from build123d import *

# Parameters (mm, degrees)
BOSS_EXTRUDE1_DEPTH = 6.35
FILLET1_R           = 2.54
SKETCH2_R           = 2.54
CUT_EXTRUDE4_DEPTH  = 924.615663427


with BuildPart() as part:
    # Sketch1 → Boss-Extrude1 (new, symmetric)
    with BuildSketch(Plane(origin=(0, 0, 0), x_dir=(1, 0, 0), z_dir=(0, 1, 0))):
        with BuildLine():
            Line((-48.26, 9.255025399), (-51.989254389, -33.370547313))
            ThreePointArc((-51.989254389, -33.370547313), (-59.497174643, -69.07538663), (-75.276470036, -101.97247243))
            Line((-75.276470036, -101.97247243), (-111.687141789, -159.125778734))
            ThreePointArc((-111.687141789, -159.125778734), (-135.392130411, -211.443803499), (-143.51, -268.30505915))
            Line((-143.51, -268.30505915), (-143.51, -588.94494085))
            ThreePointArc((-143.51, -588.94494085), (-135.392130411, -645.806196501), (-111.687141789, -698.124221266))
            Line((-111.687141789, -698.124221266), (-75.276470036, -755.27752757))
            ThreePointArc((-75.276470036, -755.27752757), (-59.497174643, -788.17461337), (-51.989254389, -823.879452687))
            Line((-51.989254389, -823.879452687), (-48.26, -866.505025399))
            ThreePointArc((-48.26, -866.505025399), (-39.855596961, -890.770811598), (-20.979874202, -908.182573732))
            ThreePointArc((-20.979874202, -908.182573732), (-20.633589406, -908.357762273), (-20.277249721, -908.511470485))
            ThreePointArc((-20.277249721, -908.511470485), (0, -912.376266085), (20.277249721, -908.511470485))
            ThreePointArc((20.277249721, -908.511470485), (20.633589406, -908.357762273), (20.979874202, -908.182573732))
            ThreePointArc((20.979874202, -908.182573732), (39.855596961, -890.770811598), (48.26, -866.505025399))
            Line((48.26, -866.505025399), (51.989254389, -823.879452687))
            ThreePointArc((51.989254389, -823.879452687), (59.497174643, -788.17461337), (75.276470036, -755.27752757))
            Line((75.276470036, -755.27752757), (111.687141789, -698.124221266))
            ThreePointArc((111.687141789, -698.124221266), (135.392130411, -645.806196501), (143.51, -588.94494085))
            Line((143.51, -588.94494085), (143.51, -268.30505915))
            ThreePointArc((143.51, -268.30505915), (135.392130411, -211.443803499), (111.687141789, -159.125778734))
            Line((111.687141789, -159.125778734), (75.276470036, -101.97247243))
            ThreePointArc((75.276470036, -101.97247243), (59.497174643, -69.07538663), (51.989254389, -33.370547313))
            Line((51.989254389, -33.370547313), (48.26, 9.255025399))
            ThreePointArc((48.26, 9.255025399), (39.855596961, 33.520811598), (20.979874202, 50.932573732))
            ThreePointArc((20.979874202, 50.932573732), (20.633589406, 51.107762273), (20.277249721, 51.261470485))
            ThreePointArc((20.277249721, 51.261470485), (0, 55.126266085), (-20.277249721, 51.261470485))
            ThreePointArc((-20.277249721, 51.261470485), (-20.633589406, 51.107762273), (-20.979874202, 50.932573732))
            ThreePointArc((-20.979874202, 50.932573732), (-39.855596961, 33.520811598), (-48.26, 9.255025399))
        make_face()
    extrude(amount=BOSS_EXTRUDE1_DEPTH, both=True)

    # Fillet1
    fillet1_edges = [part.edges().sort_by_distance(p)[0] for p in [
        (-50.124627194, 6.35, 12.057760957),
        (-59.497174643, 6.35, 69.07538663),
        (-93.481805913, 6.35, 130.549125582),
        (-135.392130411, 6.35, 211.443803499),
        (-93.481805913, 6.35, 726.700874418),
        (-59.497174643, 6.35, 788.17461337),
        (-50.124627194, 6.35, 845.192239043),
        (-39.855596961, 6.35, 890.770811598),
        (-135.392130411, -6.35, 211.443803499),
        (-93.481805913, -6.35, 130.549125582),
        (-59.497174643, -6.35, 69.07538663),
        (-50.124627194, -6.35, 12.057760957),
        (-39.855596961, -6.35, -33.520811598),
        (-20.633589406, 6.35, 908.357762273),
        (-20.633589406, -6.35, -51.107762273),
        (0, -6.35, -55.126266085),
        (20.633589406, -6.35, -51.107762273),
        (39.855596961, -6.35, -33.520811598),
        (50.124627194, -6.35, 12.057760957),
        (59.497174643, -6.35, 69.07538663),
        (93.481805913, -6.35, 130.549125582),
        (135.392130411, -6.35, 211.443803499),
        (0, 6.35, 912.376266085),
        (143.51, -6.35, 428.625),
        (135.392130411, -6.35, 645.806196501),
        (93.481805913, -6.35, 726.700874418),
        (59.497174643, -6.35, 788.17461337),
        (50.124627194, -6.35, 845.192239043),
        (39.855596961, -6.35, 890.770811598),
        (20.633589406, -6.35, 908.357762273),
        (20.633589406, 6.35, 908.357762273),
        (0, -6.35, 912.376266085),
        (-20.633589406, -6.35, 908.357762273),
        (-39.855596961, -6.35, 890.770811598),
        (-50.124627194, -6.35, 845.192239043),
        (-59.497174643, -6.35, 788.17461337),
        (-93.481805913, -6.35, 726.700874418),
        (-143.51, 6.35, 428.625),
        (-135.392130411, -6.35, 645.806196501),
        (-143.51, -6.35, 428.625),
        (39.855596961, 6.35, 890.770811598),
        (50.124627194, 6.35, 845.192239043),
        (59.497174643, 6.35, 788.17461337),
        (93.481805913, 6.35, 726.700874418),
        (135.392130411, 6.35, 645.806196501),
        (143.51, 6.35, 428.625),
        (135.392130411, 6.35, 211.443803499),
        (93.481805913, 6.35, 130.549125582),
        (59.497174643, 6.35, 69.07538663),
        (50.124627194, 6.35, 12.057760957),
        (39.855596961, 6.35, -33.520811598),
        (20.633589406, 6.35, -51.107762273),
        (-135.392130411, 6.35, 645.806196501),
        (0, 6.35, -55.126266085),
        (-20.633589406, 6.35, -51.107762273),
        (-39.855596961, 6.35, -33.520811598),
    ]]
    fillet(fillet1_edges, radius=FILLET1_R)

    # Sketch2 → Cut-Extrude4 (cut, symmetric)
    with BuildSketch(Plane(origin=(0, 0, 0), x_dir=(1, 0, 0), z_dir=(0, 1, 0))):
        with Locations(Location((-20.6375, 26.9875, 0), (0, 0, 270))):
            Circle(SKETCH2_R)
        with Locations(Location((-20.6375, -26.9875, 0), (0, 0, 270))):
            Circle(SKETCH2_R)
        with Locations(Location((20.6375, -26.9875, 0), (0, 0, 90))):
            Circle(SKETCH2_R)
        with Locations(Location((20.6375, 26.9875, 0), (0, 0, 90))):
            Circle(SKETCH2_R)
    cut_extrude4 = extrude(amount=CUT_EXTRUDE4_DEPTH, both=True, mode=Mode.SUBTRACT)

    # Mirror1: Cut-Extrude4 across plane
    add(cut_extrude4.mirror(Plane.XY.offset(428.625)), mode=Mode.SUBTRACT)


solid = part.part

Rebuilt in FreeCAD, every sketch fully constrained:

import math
import FreeCAD as App
import Part
import Sketcher

V = App.Vector
Q = App.Units.Quantity


def edges_at(feature, points):
    """Names of the edges that pass closest to the given points."""
    edges = feature.Shape.Edges
    near = lambda p: min(range(len(edges)), key=lambda i: edges[i].distToShape(Part.Vertex(*p))[0])
    return sorted({f"Edge{near(p) + 1}" for p in points})

doc = App.newDocument("Part")
body = doc.addObject("PartDesign::Body", "Body")

# Sketch on XZ plane
sketch1 = body.newObject("Sketcher::SketchObject", "Sketch")
sketch1.AttachmentSupport = (doc.getObject("XZ_Plane"), [""])
sketch1.MapMode = "FlatFace"
sketch1.addGeometry(Part.LineSegment(V(-48.26, -9.255025, 0), V(-51.989254, 33.370547, 0)), False)
sketch1.addGeometry(Part.ArcOfCircle(Part.Circle(V(-203.809326, 20.088012, 0), V(0, 0, 1), 152.4), math.radians(5), math.radians(32.5)), False)
sketch1.addGeometry(Part.LineSegment(V(-75.27647, 101.972472, 0), V(-111.687142, 159.125779, 0)), False)
sketch1.addGeometry(Part.ArcOfCircle(Part.Circle(V(59.69, 268.305059, 0), V(0, 0, 1), 203.2), math.radians(-180), math.radians(-147.5)), False)
sketch1.addGeometry(Part.LineSegment(V(-143.51, 268.305059, 0), V(-143.51, 588.944941, 0)), False)
sketch1.addGeometry(Part.ArcOfCircle(Part.Circle(V(59.69, 588.944941, 0), V(0, 0, 1), 203.2), math.radians(147.5), math.radians(180)), False)
sketch1.addGeometry(Part.LineSegment(V(-111.687142, 698.124221, 0), V(-75.27647, 755.277528, 0)), False)
sketch1.addGeometry(Part.ArcOfCircle(Part.Circle(V(-203.809326, 837.161988, 0), V(0, 0, 1), 152.4), math.radians(-32.5), math.radians(-5)), False)
sketch1.addGeometry(Part.LineSegment(V(-51.989254, 823.879453, 0), V(-48.26, 866.505025, 0)), False)
sketch1.addGeometry(Part.ArcOfCircle(Part.Circle(V(4.233081, 861.912476, 0), V(0, 0, 1), 52.693596), math.radians(118.586328), math.radians(175)), False)
sketch1.addGeometry(Part.ArcOfCircle(Part.Circle(V(-17.941511, 902.606657, 0), V(0, 0, 1), 6.35), math.radians(111.582023), math.radians(118.586328)), False)
sketch1.addGeometry(Part.ArcOfCircle(Part.Circle(V(0, 857.25, 0), V(0, 0, 1), 55.126266), math.radians(68.417977), math.radians(111.582023)), False)
sketch1.addGeometry(Part.ArcOfCircle(Part.Circle(V(17.941511, 902.606657, 0), V(0, 0, 1), 6.35), math.radians(61.413672), math.radians(68.417977)), False)
sketch1.addGeometry(Part.ArcOfCircle(Part.Circle(V(-4.233081, 861.912476, 0), V(0, 0, 1), 52.693596), math.radians(5), math.radians(61.413672)), False)
sketch1.addGeometry(Part.LineSegment(V(48.26, 866.505025, 0), V(51.989254, 823.879453, 0)), False)
sketch1.addGeometry(Part.ArcOfCircle(Part.Circle(V(203.809326, 837.161988, 0), V(0, 0, 1), 152.4), math.radians(-175), math.radians(-147.5)), False)
sketch1.addGeometry(Part.LineSegment(V(75.27647, 755.277528, 0), V(111.687142, 698.124221, 0)), False)
sketch1.addGeometry(Part.ArcOfCircle(Part.Circle(V(-59.69, 588.944941, 0), V(0, 0, 1), 203.2), math.radians(0), math.radians(32.5)), False)
sketch1.addGeometry(Part.LineSegment(V(143.51, 588.944941, 0), V(143.51, 268.305059, 0)), False)
sketch1.addGeometry(Part.ArcOfCircle(Part.Circle(V(-59.69, 268.305059, 0), V(0, 0, 1), 203.2), math.radians(-32.5), math.radians(0)), False)
sketch1.addGeometry(Part.LineSegment(V(111.687142, 159.125779, 0), V(75.27647, 101.972472, 0)), False)
sketch1.addGeometry(Part.ArcOfCircle(Part.Circle(V(203.809326, 20.088012, 0), V(0, 0, 1), 152.4), math.radians(147.5), math.radians(175)), False)
sketch1.addGeometry(Part.LineSegment(V(51.989254, 33.370547, 0), V(48.26, -9.255025, 0)), False)
sketch1.addGeometry(Part.ArcOfCircle(Part.Circle(V(-4.233081, -4.662476, 0), V(0, 0, 1), 52.693596), math.radians(-61.413672), math.radians(-5)), False)
sketch1.addGeometry(Part.ArcOfCircle(Part.Circle(V(17.941511, -45.356657, 0), V(0, 0, 1), 6.35), math.radians(-68.417977), math.radians(-61.413672)), False)
sketch1.addGeometry(Part.ArcOfCircle(Part.Circle(V(0, 0, 0), V(0, 0, 1), 55.126266), math.radians(-111.582023), math.radians(-68.417977)), False)
sketch1.addGeometry(Part.ArcOfCircle(Part.Circle(V(-17.941511, -45.356657, 0), V(0, 0, 1), 6.35), math.radians(-118.586328), math.radians(-111.582023)), False)
sketch1.addGeometry(Part.ArcOfCircle(Part.Circle(V(4.233081, -4.662476, 0), V(0, 0, 1), 52.693596), math.radians(-175), math.radians(-118.586328)), False)
sketch1.addConstraint(Sketcher.Constraint("Tangent", 0, 2, 1, 1))
sketch1.addConstraint(Sketcher.Constraint("Tangent", 1, 2, 2, 1))
sketch1.addConstraint(Sketcher.Constraint("Tangent", 2, 2, 3, 2))
sketch1.addConstraint(Sketcher.Constraint("Tangent", 3, 1, 4, 1))
sketch1.addConstraint(Sketcher.Constraint("Tangent", 4, 2, 5, 2))
sketch1.addConstraint(Sketcher.Constraint("Tangent", 5, 1, 6, 1))
sketch1.addConstraint(Sketcher.Constraint("Tangent", 6, 2, 7, 1))
sketch1.addConstraint(Sketcher.Constraint("Tangent", 7, 2, 8, 1))
sketch1.addConstraint(Sketcher.Constraint("Tangent", 8, 2, 9, 2))
sketch1.addConstraint(Sketcher.Constraint("Tangent", 9, 1, 10, 2))
sketch1.addConstraint(Sketcher.Constraint("Tangent", 10, 1, 11, 2))
sketch1.addConstraint(Sketcher.Constraint("Tangent", 11, 1, 12, 2))
sketch1.addConstraint(Sketcher.Constraint("Tangent", 12, 1, 13, 2))
sketch1.addConstraint(Sketcher.Constraint("Tangent", 13, 1, 14, 1))
sketch1.addConstraint(Sketcher.Constraint("Tangent", 14, 2, 15, 1))
sketch1.addConstraint(Sketcher.Constraint("Tangent", 15, 2, 16, 1))
sketch1.addConstraint(Sketcher.Constraint("Tangent", 16, 2, 17, 2))
sketch1.addConstraint(Sketcher.Constraint("Tangent", 17, 1, 18, 1))
sketch1.addConstraint(Sketcher.Constraint("Tangent", 18, 2, 19, 2))
sketch1.addConstraint(Sketcher.Constraint("Tangent", 19, 1, 20, 1))
sketch1.addConstraint(Sketcher.Constraint("Tangent", 20, 2, 21, 1))
sketch1.addConstraint(Sketcher.Constraint("Tangent", 21, 2, 22, 1))
sketch1.addConstraint(Sketcher.Constraint("Tangent", 22, 2, 23, 2))
sketch1.addConstraint(Sketcher.Constraint("Tangent", 23, 1, 24, 2))
sketch1.addConstraint(Sketcher.Constraint("Tangent", 24, 1, 25, 2))
sketch1.addConstraint(Sketcher.Constraint("Tangent", 25, 1, 26, 2))
sketch1.addConstraint(Sketcher.Constraint("Tangent", 26, 1, 27, 2))
sketch1.addConstraint(Sketcher.Constraint("Tangent", 27, 1, 0, 1))
sketch1.addConstraint(Sketcher.Constraint("Vertical", 4))
sketch1.addConstraint(Sketcher.Constraint("Vertical", 18))
sketch1.addConstraint(Sketcher.Constraint("Coincident", 25, 3, -1, 1))
sketch1.addConstraint(Sketcher.Constraint("Equal", 3, 5))
sketch1.addConstraint(Sketcher.Constraint("Equal", 1, 7))
sketch1.addConstraint(Sketcher.Constraint("Equal", 10, 12))
sketch1.addConstraint(Sketcher.Constraint("Equal", 9, 13))
sketch1.addConstraint(Sketcher.Constraint("Equal", 7, 15))
sketch1.addConstraint(Sketcher.Constraint("Equal", 5, 17))
sketch1.addConstraint(Sketcher.Constraint("Equal", 17, 19))
sketch1.addConstraint(Sketcher.Constraint("Equal", 15, 21))
sketch1.addConstraint(Sketcher.Constraint("Equal", 13, 23))
sketch1.addConstraint(Sketcher.Constraint("Equal", 12, 24))
sketch1.addConstraint(Sketcher.Constraint("Equal", 11, 25))
sketch1.addConstraint(Sketcher.Constraint("Equal", 24, 26))
sketch1.addConstraint(Sketcher.Constraint("Equal", 23, 27))
sketch1.addConstraint(Sketcher.Constraint("Symmetric", 10, 3, 12, 3, -2))
sketch1.addConstraint(Sketcher.Constraint("Symmetric", 7, 3, 15, 3, -2))
sketch1.addConstraint(Sketcher.Constraint("Symmetric", 5, 3, 17, 3, -2))
sketch1.addConstraint(Sketcher.Constraint("Symmetric", 1, 3, 21, 3, -2))
sketch1.addConstraint(Sketcher.Constraint("Symmetric", 23, 3, 27, 3, -2))
sketch1.addConstraint(Sketcher.Constraint("Parallel", 0, 14))
sketch1.addConstraint(Sketcher.Constraint("Parallel", 2, 16))
sketch1.addConstraint(Sketcher.Constraint("Parallel", 6, 20))
sketch1.addConstraint(Sketcher.Constraint("Parallel", 8, 22))
sketch1.addConstraint(Sketcher.Constraint("Vertical", 1, 3, 7, 3))
sketch1.addConstraint(Sketcher.Constraint("Vertical", 13, 3, 23, 3))
sketch1.addConstraint(Sketcher.Constraint("Vertical", 12, 3, 24, 3))
sketch1.addConstraint(Sketcher.Constraint("Radius", 1, Q("6 in")))
sketch1.addConstraint(Sketcher.Constraint("Radius", 3, Q("8 in")))
sketch1.addConstraint(Sketcher.Constraint("Radius", 10, Q("0.25 in")))
sketch1.addConstraint(Sketcher.Constraint("Angle", 0, Q("95 deg")))
sketch1.addConstraint(Sketcher.Constraint("DistanceX", 8, 2, -1, 1, Q("1.9 in")))
sketch1.addConstraint(Sketcher.Constraint("Angle", 2, Q("122.5 deg")))
sketch1.addConstraint(Sketcher.Constraint("DistanceX", 17, 3, 5, 3, Q("4.7 in")))
sketch1.addConstraint(Sketcher.Constraint("DistanceY", -1, 1, 11, 3, Q("33.75 in")))
sketch1.addConstraint(Sketcher.Constraint("Radius", 9, Q("52.693596 mm")))
sketch1.addConstraint(Sketcher.Constraint("Radius", 11, Q("55.126266 mm")))
sketch1.addConstraint(Sketcher.Constraint("DistanceY", 4, 1, 4, 2, Q("320.639882 mm")))
sketch1.addConstraint(Sketcher.Constraint("DistanceX", 10, 1, 11, 1, Q("40.554499 mm")))
pad1 = body.newObject("PartDesign::Pad", "Pad")
pad1.Profile = sketch1
pad1.Length = Q("0.5 in")
pad1.Midplane = True
doc.recompute()

fillet = body.newObject("PartDesign::Fillet", "Fillet")
fillet.Base = (pad1, edges_at(pad1, [
    (-50.125, 6.35, 12.058),
    (-59.497, 6.35, 69.075),
    (-93.482, 6.35, 130.549),
    (-135.392, 6.35, 211.444),
    (-93.482, 6.35, 726.701),
    (-59.497, 6.35, 788.175),
    (-50.125, 6.35, 845.192),
    (-39.856, 6.35, 890.771),
    (-135.392, -6.35, 211.444),
    (-93.482, -6.35, 130.549),
    (-59.497, -6.35, 69.075),
    (-50.125, -6.35, 12.058),
    (-39.856, -6.35, -33.521),
    (-20.634, 6.35, 908.358),
    (-20.634, -6.35, -51.108),
    (0, -6.35, -55.126),
    (20.634, -6.35, -51.108),
    (39.856, -6.35, -33.521),
    (50.125, -6.35, 12.058),
    (59.497, -6.35, 69.075),
    (93.482, -6.35, 130.549),
    (135.392, -6.35, 211.444),
    (0, 6.35, 912.376),
    (143.51, -6.35, 428.625),
    (135.392, -6.35, 645.806),
    (93.482, -6.35, 726.701),
    (59.497, -6.35, 788.175),
    (50.125, -6.35, 845.192),
    (39.856, -6.35, 890.771),
    (20.634, -6.35, 908.358),
    (20.634, 6.35, 908.358),
    (0, -6.35, 912.376),
    (-20.634, -6.35, 908.358),
    (-39.856, -6.35, 890.771),
    (-50.125, -6.35, 845.192),
    (-59.497, -6.35, 788.175),
    (-93.482, -6.35, 726.701),
    (-143.51, 6.35, 428.625),
    (-135.392, -6.35, 645.806),
    (-143.51, -6.35, 428.625),
    (39.856, 6.35, 890.771),
    (50.125, 6.35, 845.192),
    (59.497, 6.35, 788.175),
    (93.482, 6.35, 726.701),
    (135.392, 6.35, 645.806),
    (143.51, 6.35, 428.625),
    (135.392, 6.35, 211.444),
    (93.482, 6.35, 130.549),
    (59.497, 6.35, 69.075),
    (50.125, 6.35, 12.058),
    (39.856, 6.35, -33.521),
    (20.634, 6.35, -51.108),
    (-135.392, 6.35, 645.806),
    (0, 6.35, -55.126),
    (-20.634, 6.35, -51.108),
    (-39.856, 6.35, -33.521),
]))
fillet.Radius = Q("0.1 in")

# Sketch on XZ plane
sketch2 = body.newObject("Sketcher::SketchObject", "Sketch001")
sketch2.AttachmentSupport = (doc.getObject("XZ_Plane"), [""])
sketch2.MapMode = "FlatFace"
sketch2.addGeometry(Part.Circle(V(-20.6375, -26.9875, 0), V(0, 0, 1), 2.54), False)
sketch2.addGeometry(Part.Circle(V(-20.6375, 26.9875, 0), V(0, 0, 1), 2.54), False)
sketch2.addGeometry(Part.Circle(V(20.6375, 26.9875, 0), V(0, 0, 1), 2.54), False)
sketch2.addGeometry(Part.Circle(V(20.6375, -26.9875, 0), V(0, 0, 1), 2.54), False)
sketch2.addConstraint(Sketcher.Constraint("Equal", 0, 1))
sketch2.addConstraint(Sketcher.Constraint("Equal", 1, 2))
sketch2.addConstraint(Sketcher.Constraint("Equal", 2, 3))
sketch2.addConstraint(Sketcher.Constraint("Symmetric", 0, 3, 2, 3, -1, 1))
sketch2.addConstraint(Sketcher.Constraint("Symmetric", 1, 3, 3, 3, -1, 1))
sketch2.addConstraint(Sketcher.Constraint("Symmetric", 1, 3, 2, 3, -2))
sketch2.addConstraint(Sketcher.Constraint("Diameter", 0, Q("0.2 in")))
sketch2.addConstraint(Sketcher.Constraint("DistanceX", 0, 3, -1, 1, Q("0.8125 in")))
sketch2.addConstraint(Sketcher.Constraint("DistanceY", 0, 3, -1, 1, Q("1.0625 in")))
pocket1 = body.newObject("PartDesign::Pocket", "Pocket")
pocket1.Profile = sketch2
pocket1.Length = 1849.231327
pocket1.Midplane = True
doc.recompute()

datumplane = body.newObject("PartDesign::Plane", "DatumPlane")
datumplane.AttachmentSupport = (doc.getObject("XY_Plane"), [""])
datumplane.MapMode = "FlatFace"
datumplane.AttachmentOffset = App.Placement(V(0, 0, 16.875 * 25.4), App.Rotation())
mirrored = body.newObject("PartDesign::Mirrored", "Mirrored")
mirrored.Originals = [pocket1]
mirrored.MirrorPlane = (datumplane, [""])
body.Tip = mirrored

doc.recompute()
